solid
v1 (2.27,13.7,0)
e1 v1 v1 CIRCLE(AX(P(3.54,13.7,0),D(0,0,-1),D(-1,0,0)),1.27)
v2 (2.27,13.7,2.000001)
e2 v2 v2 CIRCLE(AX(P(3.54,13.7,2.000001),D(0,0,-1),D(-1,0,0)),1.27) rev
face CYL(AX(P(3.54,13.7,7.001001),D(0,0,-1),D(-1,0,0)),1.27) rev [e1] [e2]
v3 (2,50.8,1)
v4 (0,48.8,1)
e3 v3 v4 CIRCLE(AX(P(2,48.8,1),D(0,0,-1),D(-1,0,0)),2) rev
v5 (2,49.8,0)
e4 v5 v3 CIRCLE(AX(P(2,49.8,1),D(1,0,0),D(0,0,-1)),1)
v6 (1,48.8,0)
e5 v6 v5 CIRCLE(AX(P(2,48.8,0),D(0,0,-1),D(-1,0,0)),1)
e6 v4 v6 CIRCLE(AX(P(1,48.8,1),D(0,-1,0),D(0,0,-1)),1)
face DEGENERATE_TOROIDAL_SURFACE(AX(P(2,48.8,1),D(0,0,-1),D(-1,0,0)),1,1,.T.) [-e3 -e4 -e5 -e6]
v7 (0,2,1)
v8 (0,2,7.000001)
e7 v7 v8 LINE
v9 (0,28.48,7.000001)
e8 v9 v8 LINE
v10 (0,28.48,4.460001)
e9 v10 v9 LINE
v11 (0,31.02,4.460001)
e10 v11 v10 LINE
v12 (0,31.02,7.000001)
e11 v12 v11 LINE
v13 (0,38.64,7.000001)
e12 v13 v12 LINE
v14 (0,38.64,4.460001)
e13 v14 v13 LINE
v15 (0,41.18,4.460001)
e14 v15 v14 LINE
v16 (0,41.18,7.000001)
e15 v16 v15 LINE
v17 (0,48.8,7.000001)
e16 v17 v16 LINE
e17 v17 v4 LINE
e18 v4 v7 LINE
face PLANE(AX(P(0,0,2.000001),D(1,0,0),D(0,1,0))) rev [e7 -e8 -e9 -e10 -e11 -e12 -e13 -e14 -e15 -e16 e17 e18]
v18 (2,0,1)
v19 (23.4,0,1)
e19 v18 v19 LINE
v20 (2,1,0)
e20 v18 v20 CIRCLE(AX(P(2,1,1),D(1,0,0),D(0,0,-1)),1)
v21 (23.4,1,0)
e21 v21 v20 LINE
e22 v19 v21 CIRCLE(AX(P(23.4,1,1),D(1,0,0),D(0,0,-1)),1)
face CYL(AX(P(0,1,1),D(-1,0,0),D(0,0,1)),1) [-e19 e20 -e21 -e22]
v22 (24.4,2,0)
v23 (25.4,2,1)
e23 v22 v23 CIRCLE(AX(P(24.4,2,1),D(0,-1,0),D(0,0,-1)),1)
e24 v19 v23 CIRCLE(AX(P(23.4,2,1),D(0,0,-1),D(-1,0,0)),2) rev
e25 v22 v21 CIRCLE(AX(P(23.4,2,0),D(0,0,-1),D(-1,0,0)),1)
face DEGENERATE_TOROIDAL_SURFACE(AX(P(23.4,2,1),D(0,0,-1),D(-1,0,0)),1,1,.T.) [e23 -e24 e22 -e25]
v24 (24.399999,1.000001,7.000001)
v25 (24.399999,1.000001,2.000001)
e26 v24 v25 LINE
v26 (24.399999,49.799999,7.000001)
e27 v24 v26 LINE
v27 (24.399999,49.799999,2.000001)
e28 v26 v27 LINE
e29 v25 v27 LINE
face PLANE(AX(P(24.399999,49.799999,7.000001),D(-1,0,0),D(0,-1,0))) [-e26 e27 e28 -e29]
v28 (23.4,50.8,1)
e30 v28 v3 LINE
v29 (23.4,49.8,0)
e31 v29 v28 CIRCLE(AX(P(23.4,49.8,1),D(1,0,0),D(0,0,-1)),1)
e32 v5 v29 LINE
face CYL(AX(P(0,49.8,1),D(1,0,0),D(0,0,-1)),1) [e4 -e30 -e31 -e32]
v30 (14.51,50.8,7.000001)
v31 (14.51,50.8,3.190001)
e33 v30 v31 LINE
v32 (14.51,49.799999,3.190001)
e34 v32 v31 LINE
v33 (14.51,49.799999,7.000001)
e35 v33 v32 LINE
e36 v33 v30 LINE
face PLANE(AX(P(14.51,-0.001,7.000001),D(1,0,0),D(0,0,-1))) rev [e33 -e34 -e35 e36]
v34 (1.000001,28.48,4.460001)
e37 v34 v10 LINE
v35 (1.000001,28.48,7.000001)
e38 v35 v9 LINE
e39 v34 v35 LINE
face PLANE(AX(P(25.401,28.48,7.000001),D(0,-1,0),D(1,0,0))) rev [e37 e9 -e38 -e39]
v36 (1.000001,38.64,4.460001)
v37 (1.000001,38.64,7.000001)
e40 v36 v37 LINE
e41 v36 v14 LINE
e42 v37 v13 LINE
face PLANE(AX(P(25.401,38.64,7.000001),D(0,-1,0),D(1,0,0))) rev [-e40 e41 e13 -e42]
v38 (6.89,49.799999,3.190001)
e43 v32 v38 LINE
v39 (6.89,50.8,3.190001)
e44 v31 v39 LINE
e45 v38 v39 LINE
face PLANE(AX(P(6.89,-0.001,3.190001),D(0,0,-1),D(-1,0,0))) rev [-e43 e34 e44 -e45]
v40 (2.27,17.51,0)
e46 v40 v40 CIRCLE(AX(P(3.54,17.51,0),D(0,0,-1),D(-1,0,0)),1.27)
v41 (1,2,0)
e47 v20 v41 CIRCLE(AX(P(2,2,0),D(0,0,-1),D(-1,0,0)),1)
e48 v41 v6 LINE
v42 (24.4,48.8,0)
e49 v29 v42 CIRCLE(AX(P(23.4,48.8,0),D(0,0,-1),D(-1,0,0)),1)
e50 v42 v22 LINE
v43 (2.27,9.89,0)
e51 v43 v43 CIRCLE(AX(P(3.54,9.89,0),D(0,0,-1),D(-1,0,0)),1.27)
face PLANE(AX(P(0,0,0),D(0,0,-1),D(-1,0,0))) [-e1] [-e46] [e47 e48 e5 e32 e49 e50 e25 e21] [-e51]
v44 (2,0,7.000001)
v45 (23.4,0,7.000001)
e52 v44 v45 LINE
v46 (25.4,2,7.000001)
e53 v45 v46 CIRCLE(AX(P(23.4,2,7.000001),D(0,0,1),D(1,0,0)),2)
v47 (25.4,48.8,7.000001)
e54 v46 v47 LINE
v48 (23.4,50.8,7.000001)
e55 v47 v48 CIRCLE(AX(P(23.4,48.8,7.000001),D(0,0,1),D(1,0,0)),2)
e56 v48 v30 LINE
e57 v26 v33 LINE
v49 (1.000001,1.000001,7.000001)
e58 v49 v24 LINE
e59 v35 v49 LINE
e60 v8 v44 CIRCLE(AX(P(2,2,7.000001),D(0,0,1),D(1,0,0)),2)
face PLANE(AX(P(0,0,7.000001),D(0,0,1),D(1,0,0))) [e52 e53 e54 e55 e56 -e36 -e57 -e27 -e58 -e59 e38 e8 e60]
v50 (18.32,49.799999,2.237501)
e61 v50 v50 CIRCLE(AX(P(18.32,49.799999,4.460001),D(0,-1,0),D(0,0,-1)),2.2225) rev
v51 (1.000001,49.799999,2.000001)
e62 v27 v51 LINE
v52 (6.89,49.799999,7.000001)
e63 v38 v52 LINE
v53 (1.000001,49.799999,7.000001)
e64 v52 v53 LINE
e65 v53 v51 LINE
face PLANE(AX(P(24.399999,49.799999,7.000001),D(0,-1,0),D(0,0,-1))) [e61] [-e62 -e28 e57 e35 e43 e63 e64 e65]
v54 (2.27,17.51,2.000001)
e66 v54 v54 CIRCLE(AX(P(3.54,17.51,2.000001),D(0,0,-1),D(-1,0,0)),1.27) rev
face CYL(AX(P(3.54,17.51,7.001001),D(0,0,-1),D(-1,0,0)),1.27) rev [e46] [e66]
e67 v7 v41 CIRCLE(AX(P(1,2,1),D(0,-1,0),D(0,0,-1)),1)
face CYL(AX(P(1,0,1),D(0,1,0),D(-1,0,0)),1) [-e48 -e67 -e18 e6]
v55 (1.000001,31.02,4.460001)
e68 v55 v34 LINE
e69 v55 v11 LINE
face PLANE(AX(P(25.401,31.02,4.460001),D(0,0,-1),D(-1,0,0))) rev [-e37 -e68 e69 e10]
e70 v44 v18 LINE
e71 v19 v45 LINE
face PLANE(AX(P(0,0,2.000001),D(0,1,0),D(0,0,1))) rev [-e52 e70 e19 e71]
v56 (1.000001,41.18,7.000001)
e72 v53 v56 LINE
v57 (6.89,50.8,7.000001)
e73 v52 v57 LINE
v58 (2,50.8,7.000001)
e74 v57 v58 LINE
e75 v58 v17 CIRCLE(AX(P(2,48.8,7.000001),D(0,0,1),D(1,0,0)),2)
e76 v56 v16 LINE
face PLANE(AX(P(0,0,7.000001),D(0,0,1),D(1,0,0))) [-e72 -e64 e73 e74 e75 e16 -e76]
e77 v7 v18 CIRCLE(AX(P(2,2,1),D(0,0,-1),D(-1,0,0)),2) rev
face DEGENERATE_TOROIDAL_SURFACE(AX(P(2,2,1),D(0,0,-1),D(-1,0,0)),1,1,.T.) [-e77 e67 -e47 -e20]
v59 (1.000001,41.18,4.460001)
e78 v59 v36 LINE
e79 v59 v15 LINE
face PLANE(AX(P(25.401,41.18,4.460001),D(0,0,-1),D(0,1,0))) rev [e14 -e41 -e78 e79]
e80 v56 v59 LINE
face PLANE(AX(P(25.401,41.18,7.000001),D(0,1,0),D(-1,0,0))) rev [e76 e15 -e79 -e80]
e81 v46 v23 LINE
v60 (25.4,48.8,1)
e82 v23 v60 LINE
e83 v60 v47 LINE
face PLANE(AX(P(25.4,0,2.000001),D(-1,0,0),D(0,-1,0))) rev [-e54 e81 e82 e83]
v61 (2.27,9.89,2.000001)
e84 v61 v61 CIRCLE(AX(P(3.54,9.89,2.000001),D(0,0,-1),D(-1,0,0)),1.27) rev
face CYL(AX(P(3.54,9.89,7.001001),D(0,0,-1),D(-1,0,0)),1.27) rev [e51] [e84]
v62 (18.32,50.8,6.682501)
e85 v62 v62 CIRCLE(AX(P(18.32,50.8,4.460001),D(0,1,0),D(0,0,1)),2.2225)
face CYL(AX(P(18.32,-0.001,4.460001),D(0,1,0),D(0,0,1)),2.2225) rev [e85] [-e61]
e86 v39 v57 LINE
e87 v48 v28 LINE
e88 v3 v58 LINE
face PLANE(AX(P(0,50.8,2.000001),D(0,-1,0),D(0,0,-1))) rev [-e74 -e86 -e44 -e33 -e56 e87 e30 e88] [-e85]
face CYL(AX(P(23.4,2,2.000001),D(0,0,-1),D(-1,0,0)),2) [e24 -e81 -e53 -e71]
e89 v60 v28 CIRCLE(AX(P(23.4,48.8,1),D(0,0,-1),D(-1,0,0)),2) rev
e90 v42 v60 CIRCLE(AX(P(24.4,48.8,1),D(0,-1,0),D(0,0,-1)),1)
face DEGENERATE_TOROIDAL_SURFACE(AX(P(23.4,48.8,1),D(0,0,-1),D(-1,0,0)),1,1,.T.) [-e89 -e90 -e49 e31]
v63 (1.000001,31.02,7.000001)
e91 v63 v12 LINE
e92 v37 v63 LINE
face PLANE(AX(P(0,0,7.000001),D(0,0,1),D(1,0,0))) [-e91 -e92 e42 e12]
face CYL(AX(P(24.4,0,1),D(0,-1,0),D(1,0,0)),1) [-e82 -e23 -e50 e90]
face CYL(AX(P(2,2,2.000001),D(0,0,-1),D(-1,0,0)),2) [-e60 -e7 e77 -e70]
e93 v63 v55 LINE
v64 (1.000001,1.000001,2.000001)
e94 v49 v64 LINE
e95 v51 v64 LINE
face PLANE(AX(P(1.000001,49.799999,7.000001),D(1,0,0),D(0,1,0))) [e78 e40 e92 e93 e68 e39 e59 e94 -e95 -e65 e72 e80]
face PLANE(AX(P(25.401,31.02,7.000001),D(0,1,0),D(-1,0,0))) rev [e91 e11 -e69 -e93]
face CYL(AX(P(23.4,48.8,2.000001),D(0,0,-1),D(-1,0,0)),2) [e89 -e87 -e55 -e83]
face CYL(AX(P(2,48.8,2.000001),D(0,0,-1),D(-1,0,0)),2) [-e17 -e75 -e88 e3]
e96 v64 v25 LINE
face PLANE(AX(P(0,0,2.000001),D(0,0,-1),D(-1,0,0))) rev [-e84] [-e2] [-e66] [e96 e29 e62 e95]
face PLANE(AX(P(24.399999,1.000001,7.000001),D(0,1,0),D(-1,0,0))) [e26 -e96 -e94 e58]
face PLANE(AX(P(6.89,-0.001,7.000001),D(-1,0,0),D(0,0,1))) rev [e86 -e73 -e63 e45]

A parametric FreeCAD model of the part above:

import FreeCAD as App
import Part
import Sketcher
Q = App.Units.Quantity


def edges_at(feature, points):
    """Names of the edges that pass closest to the given points."""
    edges = feature.Shape.Edges
    near = lambda p: min(range(len(edges)), key=lambda i: edges[i].distToShape(Part.Vertex(*p))[0])
    return sorted({f"Edge{near(p) + 1}" for p in points})


def add_polygon(sketch, points):
    """Adds a closed chain of lines whose ends are joined by coincident constraints."""
    first, n = sketch.GeometryCount, len(points)
    for a, b in zip(points, points[1:] + points[:1]):
        sketch.addGeometry(Part.LineSegment(App.Vector(*a, 0), App.Vector(*b, 0)), False)
    for i in range(n):
        sketch.addConstraint(Sketcher.Constraint("Coincident", first + i, 2, first + (i + 1) % n, 1))

doc = App.newDocument("Part")
body = doc.addObject("PartDesign::Body", "Body")

# Sketch on XY plane
sketch1 = body.newObject("Sketcher::SketchObject", "Sketch")
sketch1.AttachmentSupport = (doc.getObject("XY_Plane"), [""])
sketch1.MapMode = "FlatFace"
add_polygon(sketch1, [(0, 51), (0, 0), (25, 0), (25, 51)])  # lines 0-3
sketch1.addConstraint([
    Sketcher.Constraint("Vertical", 0),
    Sketcher.Constraint("Horizontal", 1),
    Sketcher.Constraint("Vertical", 2),
    Sketcher.Constraint("Horizontal", 3),
    Sketcher.Constraint("Coincident", 0, 2, -1, 1),
    Sketcher.Constraint("DistanceX", 1, 1, 1, 2, Q("25.4 mm")),
    Sketcher.Constraint("DistanceY", 0, 2, 0, 1, Q("50.8 mm")),
])
pad1 = body.newObject("PartDesign::Pad", "Pad")
pad1.Profile = sketch1
pad1.Length = 2.000001

# Sketch on XY plane
sketch2 = body.newObject("Sketcher::SketchObject", "Sketch001")
sketch2.AttachmentSupport = (doc.getObject("XY_Plane"), [""])
sketch2.MapMode = "FlatFace"
sketch2.AttachmentOffset = App.Placement(App.Vector(0, 0, 2.000001), App.Rotation())
add_polygon(sketch2, [(0, 51), (0, 0), (25, 0), (25, 51)])  # lines 0-3
add_polygon(sketch2, [(24, 1), (1, 1), (1, 50), (24, 50)])  # lines 4-7
sketch2.addConstraint([
    Sketcher.Constraint("Vertical", 0),
    Sketcher.Constraint("Horizontal", 1),
    Sketcher.Constraint("Vertical", 2),
    Sketcher.Constraint("Horizontal", 3),
    Sketcher.Constraint("Horizontal", 4),
    Sketcher.Constraint("Vertical", 5),
    Sketcher.Constraint("Horizontal", 6),
    Sketcher.Constraint("Vertical", 7),
    Sketcher.Constraint("Coincident", 0, 2, -1, 1),
    Sketcher.Constraint("DistanceX", 1, 1, 1, 2, Q("25.4 mm")),
    Sketcher.Constraint("DistanceX", 4, 2, 4, 1, Q("23.399999 mm")),
    Sketcher.Constraint("DistanceY", 0, 2, 0, 1, Q("50.8 mm")),
    Sketcher.Constraint("DistanceY", 5, 1, 5, 2, Q("48.799999 mm")),
    Sketcher.Constraint("DistanceX", -1, 1, 4, 2, Q("1.000001 mm")),
    Sketcher.Constraint("DistanceY", -1, 1, 4, 2, Q("1.000001 mm")),
])
pad2 = body.newObject("PartDesign::Pad", "Pad001")
pad2.Profile = sketch2
pad2.Length = 5
doc.recompute()

fillet = body.newObject("PartDesign::Fillet", "Fillet")
fillet.Base = (pad2, edges_at(pad2, [
    (0, 50.8, 3.5),
    (25.4, 50.8, 3.5),
    (25.4, 0, 3.5),
    (0, 0, 3.5),
]))
fillet.Radius = 2
doc.recompute()

fillet2 = body.newObject("PartDesign::Fillet", "Fillet001")
fillet2.Base = (fillet, edges_at(fillet, [
    (12.7, 0, 0),
    (0, 25.4, 0),
    (12.7, 50.8, 0),
    (25.4, 25.4, 0),
    (24.814, 50.214, 0),
    (0.586, 50.214, 0),
    (24.814, 0.586, 0),
    (0.586, 0.586, 0),
]))
fillet2.Radius = 1

# Sketch on XZ plane
sketch3 = body.newObject("Sketcher::SketchObject", "Sketch002")
sketch3.AttachmentSupport = (doc.getObject("XZ_Plane"), [""])
sketch3.MapMode = "FlatFace"
sketch3.AttachmentOffset = App.Placement(App.Vector(0, 0, -50.8), App.Rotation())
sketch3.addGeometry(Part.Circle(App.Vector(18.3, 4.5, 0), App.Vector(0, 0, 1), 2.2), False)
sketch3.addConstraint([
    Sketcher.Constraint("Diameter", 0, Q("4.445 mm")),
    Sketcher.Constraint("DistanceX", -1, 1, 0, 3, Q("18.32 mm")),
    Sketcher.Constraint("DistanceY", -1, 1, 0, 3, Q("4.460001 mm")),
])
pocket1 = body.newObject("PartDesign::Pocket", "Pocket")
pocket1.Profile = sketch3
pocket1.Type = "UpToFirst"
pocket1.Reversed = True

# Sketch on XZ plane
sketch4 = body.newObject("Sketcher::SketchObject", "Sketch003")
sketch4.AttachmentSupport = (doc.getObject("XZ_Plane"), [""])
sketch4.MapMode = "FlatFace"
sketch4.AttachmentOffset = App.Placement(App.Vector(0, 0, -50.8), App.Rotation())
add_polygon(sketch4, [(6.9, 3.2), (6.9, 7), (14.5, 7), (14.5, 3.2)])  # lines 0-3
sketch4.addConstraint([
    Sketcher.Constraint("Vertical", 0),
    Sketcher.Constraint("Horizontal", 1),
    Sketcher.Constraint("Vertical", 2),
    Sketcher.Constraint("Horizontal", 3),
    Sketcher.Constraint("DistanceY", -1, 1, 0, 2, Q("7.000001 mm")),
    Sketcher.Constraint("DistanceX", 1, 1, 1, 2, Q("7.62 mm")),
    Sketcher.Constraint("DistanceY", 0, 1, 0, 2, Q("3.81 mm")),
    Sketcher.Constraint("DistanceX", -1, 1, 0, 2, Q("6.89 mm")),
])
pocket2 = body.newObject("PartDesign::Pocket", "Pocket001")
pocket2.Profile = sketch4
pocket2.Type = "UpToFirst"
pocket2.Reversed = True

# Sketch on YZ plane
sketch5 = body.newObject("Sketcher::SketchObject", "Sketch004")
sketch5.AttachmentSupport = (doc.getObject("YZ_Plane"), [""])
sketch5.MapMode = "FlatFace"
add_polygon(sketch5, [(41.2, 4.5), (38.6, 4.5), (38.6, 7), (41.2, 7)])  # lines 0-3
sketch5.addConstraint([
    Sketcher.Constraint("Horizontal", 0),
    Sketcher.Constraint("Vertical", 1),
    Sketcher.Constraint("Horizontal", 2),
    Sketcher.Constraint("Vertical", 3),
    Sketcher.Constraint("Equal", 2, 1),
    Sketcher.Constraint("DistanceY", -1, 1, 1, 2, Q("7.000001 mm")),
    Sketcher.Constraint("DistanceX", 0, 2, 0, 1, Q("2.54 mm")),
    Sketcher.Constraint("DistanceX", -1, 1, 0, 2, Q("38.64 mm")),
])
pocket3 = body.newObject("PartDesign::Pocket", "Pocket002")
pocket3.Profile = sketch5
pocket3.Type = "UpToFirst"
pocket3.Reversed = True

# Sketch on YZ plane
sketch6 = body.newObject("Sketcher::SketchObject", "Sketch005")
sketch6.AttachmentSupport = (doc.getObject("YZ_Plane"), [""])
sketch6.MapMode = "FlatFace"
add_polygon(sketch6, [(31, 4.5), (28.5, 4.5), (28.5, 7), (31, 7)])  # lines 0-3
sketch6.addConstraint([
    Sketcher.Constraint("Horizontal", 0),
    Sketcher.Constraint("Vertical", 1),
    Sketcher.Constraint("Horizontal", 2),
    Sketcher.Constraint("Vertical", 3),
    Sketcher.Constraint("Equal", 2, 1),
    Sketcher.Constraint("DistanceY", -1, 1, 1, 2, Q("7.000001 mm")),
    Sketcher.Constraint("DistanceX", 0, 2, 0, 1, Q("2.54 mm")),
    Sketcher.Constraint("DistanceX", -1, 1, 0, 2, Q("28.48 mm")),
])
pocket4 = body.newObject("PartDesign::Pocket", "Pocket003")
pocket4.Profile = sketch6
pocket4.Type = "UpToFirst"
pocket4.Reversed = True

# Sketch on XY plane
sketch7 = body.newObject("Sketcher::SketchObject", "Sketch006")
sketch7.AttachmentSupport = (doc.getObject("XY_Plane"), [""])
sketch7.MapMode = "FlatFace"
sketch7.addGeometry(Part.Circle(App.Vector(3.5, 9.9, 0), App.Vector(0, 0, 1), 1.3), False)
sketch7.addConstraint([
    Sketcher.Constraint("Diameter", 0, Q("2.54 mm")),
    Sketcher.Constraint("DistanceX", -1, 1, 0, 3, Q("3.54 mm")),
    Sketcher.Constraint("DistanceY", -1, 1, 0, 3, Q("9.89 mm")),
])
pocket5 = body.newObject("PartDesign::Pocket", "Pocket004")
pocket5.Profile = sketch7
pocket5.Type = "UpToFirst"
pocket5.Reversed = True

# Sketch on XY plane
sketch8 = body.newObject("Sketcher::SketchObject", "Sketch007")
sketch8.AttachmentSupport = (doc.getObject("XY_Plane"), [""])
sketch8.MapMode = "FlatFace"
sketch8.addGeometry(Part.Circle(App.Vector(3.5, 13.7, 0), App.Vector(0, 0, 1), 1.3), False)
sketch8.addConstraint([
    Sketcher.Constraint("Diameter", 0, Q("2.54 mm")),
    Sketcher.Constraint("DistanceY", -1, 1, 0, 3, Q("13.7 mm")),
    Sketcher.Constraint("DistanceX", -1, 1, 0, 3, Q("3.54 mm")),
])
pocket6 = body.newObject("PartDesign::Pocket", "Pocket005")
pocket6.Profile = sketch8
pocket6.Type = "UpToFirst"
pocket6.Reversed = True

# Sketch on XY plane
sketch9 = body.newObject("Sketcher::SketchObject", "Sketch008")
sketch9.AttachmentSupport = (doc.getObject("XY_Plane"), [""])
sketch9.MapMode = "FlatFace"
sketch9.addGeometry(Part.Circle(App.Vector(3.5, 17.5, 0), App.Vector(0, 0, 1), 1.3), False)
sketch9.addConstraint([
    Sketcher.Constraint("Diameter", 0, Q("2.54 mm")),
    Sketcher.Constraint("DistanceX", -1, 1, 0, 3, Q("3.54 mm")),
    Sketcher.Constraint("DistanceY", -1, 1, 0, 3, Q("17.51 mm")),
])
pocket7 = body.newObject("PartDesign::Pocket", "Pocket006")
pocket7.Profile = sketch9
pocket7.Type = "UpToFirst"
pocket7.Reversed = True

doc.recompute()
